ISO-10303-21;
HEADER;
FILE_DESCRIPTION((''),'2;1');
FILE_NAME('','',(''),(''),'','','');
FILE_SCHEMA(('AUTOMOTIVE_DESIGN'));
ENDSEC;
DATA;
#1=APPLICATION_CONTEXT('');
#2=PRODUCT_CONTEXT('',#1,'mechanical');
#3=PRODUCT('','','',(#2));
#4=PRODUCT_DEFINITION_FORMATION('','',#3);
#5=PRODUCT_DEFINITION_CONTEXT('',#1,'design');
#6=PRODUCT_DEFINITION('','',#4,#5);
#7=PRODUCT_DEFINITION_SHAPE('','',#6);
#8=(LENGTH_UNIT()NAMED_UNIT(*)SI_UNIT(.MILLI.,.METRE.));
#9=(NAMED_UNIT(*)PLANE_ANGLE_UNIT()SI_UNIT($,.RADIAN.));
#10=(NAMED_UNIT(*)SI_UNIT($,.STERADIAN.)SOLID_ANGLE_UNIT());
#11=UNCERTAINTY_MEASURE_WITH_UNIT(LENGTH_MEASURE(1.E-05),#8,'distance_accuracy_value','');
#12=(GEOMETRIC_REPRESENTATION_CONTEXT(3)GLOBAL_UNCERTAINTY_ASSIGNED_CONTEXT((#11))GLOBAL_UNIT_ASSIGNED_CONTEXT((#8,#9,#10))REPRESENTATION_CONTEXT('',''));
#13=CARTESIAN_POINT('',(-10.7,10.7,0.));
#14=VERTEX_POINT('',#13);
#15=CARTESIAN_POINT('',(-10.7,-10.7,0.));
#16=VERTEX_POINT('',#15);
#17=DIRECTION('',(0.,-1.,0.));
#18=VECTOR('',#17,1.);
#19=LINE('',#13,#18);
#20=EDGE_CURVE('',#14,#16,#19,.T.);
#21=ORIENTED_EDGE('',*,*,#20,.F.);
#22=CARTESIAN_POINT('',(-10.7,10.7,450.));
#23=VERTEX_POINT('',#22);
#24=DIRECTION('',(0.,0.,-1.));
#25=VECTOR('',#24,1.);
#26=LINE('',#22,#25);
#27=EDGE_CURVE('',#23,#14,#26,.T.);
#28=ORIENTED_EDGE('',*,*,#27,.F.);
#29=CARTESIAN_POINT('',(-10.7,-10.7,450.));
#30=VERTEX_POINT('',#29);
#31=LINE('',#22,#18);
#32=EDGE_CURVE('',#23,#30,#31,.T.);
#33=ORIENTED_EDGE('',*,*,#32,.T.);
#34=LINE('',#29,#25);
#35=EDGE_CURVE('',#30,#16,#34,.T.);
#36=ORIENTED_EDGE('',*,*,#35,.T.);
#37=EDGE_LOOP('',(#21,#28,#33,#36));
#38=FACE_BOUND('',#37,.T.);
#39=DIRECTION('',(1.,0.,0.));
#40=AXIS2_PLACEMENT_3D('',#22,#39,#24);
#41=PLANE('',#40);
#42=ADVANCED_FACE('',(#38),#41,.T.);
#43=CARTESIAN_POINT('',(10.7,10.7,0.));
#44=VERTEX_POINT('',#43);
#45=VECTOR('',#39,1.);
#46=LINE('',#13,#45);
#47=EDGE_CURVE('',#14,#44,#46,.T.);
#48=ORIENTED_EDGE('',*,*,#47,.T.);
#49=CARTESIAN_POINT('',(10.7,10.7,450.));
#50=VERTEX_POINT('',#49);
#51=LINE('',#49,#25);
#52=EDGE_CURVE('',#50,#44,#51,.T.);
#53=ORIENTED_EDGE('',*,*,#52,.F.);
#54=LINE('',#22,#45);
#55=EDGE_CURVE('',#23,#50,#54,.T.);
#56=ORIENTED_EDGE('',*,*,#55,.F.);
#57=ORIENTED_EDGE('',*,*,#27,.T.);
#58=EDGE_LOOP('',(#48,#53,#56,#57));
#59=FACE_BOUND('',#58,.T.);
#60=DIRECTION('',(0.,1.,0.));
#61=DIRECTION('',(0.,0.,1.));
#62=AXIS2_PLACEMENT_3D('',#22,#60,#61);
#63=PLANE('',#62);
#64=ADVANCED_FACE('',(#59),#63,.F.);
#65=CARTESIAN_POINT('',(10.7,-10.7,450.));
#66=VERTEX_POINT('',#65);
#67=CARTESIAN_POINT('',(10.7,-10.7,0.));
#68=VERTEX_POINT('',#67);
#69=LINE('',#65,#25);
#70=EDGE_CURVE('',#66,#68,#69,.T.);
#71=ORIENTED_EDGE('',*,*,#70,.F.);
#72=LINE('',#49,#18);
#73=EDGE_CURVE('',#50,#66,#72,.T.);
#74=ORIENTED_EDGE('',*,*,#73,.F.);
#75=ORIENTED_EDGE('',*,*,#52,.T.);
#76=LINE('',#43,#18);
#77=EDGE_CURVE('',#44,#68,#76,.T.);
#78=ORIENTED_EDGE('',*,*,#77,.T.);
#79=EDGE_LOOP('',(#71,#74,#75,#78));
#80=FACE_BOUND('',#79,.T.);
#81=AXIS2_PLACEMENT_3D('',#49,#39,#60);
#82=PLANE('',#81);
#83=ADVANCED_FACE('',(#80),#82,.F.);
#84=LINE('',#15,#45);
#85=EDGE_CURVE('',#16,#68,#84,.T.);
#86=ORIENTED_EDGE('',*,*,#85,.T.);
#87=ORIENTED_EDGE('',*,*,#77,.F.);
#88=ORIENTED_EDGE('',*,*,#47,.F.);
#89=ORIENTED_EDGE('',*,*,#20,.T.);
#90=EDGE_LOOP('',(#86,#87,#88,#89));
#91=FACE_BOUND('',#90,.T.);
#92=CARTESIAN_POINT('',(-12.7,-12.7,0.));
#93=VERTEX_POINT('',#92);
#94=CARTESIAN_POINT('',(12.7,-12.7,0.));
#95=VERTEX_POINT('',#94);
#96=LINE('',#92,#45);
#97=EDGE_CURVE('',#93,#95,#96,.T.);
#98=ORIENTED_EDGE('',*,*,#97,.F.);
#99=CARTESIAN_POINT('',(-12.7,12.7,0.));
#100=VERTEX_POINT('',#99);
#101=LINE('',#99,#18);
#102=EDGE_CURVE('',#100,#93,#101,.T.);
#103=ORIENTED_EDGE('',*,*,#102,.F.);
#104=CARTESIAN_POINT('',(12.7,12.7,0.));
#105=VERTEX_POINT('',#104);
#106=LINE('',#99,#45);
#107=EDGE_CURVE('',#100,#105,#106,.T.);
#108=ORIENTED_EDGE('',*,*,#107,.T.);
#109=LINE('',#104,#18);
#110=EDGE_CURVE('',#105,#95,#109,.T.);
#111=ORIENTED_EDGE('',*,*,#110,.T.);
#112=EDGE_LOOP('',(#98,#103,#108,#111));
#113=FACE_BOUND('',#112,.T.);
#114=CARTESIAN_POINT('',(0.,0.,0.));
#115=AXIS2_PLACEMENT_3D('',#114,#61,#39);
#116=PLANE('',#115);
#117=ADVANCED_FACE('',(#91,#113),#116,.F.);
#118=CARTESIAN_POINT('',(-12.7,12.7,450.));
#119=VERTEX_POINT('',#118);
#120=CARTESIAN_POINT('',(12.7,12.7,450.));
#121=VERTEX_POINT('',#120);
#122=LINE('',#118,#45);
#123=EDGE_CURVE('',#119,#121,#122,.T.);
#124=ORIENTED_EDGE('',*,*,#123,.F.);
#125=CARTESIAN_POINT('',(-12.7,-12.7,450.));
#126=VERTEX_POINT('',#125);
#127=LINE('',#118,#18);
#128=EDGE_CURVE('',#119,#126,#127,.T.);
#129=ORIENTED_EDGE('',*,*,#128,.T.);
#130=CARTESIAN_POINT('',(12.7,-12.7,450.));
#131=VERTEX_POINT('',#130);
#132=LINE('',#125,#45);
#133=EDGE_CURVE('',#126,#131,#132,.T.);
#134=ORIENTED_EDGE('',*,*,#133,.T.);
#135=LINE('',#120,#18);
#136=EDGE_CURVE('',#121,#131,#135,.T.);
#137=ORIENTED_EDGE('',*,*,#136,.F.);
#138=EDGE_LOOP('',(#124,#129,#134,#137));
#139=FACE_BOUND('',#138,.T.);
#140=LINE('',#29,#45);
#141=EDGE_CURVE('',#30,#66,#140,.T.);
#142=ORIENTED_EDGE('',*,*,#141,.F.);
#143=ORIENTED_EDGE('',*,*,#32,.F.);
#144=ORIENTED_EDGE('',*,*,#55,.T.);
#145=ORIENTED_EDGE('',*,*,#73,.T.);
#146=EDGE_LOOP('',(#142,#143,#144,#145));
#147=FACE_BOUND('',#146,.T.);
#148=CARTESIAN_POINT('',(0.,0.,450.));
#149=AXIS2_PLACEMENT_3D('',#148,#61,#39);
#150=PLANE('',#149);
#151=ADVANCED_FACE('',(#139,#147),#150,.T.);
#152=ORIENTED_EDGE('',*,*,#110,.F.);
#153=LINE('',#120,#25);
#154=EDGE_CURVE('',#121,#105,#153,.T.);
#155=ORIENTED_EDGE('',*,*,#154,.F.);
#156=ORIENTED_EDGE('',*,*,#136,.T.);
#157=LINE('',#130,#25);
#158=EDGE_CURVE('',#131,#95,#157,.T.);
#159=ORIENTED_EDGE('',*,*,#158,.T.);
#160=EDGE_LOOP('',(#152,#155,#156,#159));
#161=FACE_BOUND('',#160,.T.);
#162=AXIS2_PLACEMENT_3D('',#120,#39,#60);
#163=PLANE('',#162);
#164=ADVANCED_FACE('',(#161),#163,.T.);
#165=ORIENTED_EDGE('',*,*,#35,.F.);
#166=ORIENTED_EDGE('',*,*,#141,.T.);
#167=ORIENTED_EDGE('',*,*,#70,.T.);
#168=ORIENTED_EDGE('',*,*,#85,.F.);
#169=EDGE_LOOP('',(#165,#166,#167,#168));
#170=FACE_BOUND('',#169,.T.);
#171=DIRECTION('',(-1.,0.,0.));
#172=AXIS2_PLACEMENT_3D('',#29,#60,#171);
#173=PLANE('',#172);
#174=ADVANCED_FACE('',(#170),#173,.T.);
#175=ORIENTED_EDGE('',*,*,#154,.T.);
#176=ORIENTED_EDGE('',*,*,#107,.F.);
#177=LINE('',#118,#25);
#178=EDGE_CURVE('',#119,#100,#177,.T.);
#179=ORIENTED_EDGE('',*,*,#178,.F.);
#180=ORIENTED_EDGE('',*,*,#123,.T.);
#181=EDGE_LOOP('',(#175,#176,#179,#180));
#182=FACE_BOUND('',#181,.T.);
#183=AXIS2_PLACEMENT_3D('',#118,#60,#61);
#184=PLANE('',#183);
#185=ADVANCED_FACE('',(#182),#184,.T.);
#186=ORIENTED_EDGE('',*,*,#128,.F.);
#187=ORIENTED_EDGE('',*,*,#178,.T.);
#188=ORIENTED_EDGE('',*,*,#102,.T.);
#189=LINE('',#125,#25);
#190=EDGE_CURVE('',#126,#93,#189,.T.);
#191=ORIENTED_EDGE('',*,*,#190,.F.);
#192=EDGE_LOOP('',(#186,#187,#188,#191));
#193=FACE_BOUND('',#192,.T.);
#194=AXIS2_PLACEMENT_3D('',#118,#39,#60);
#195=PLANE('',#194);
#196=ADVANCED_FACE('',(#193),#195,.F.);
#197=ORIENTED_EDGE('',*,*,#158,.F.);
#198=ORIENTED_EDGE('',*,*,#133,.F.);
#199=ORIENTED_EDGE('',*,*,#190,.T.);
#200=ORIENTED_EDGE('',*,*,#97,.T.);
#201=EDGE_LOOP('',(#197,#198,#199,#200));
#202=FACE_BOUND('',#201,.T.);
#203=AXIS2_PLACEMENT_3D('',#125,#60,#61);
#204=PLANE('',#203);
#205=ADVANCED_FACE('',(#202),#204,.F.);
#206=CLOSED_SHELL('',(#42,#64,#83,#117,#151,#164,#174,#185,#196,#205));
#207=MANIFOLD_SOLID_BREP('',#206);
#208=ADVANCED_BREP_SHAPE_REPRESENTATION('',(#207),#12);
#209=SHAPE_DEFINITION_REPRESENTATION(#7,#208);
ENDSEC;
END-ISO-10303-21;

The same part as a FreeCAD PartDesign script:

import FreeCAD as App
import Part
import Sketcher

V = App.Vector


def add_polygon(sketch, points):
    """Adds a closed chain of lines whose ends are joined by coincident constraints."""
    first, n = sketch.GeometryCount, len(points)
    for a, b in zip(points, points[1:] + points[:1]):
        sketch.addGeometry(Part.LineSegment(App.Vector(*a, 0), App.Vector(*b, 0)), False)
    for i in range(n):
        sketch.addConstraint(Sketcher.Constraint("Coincident", first + i, 2, first + (i + 1) % n, 1))

doc = App.newDocument("Part")
body = doc.addObject("PartDesign::Body", "Body")

# Sketch on XY plane
sketch1 = body.newObject("Sketcher::SketchObject", "Sketch")
sketch1.AttachmentSupport = (doc.getObject("XY_Plane"), [""])
sketch1.MapMode = "FlatFace"
add_polygon(sketch1, [(-12.7, 12.7), (-12.7, -12.7), (12.7, -12.7), (12.7, 12.7)])  # lines 0-3
sketch1.addConstraint([
    Sketcher.Constraint("Vertical", 0),
    Sketcher.Constraint("Horizontal", 1),
    Sketcher.Constraint("Vertical", 2),
    Sketcher.Constraint("Horizontal", 3),
    Sketcher.Constraint("Symmetric", 0, 2, 2, 2, -1, 1),
    Sketcher.Constraint("Equal", 3, 0),
    Sketcher.Constraint("DistanceX", 1, 1, 1, 2, 25.4),
])
pad1 = body.newObject("PartDesign::Pad", "Pad")
pad1.Profile = sketch1
pad1.Length = 450

# Sketch on XY plane
sketch2 = body.newObject("Sketcher::SketchObject", "Sketch001")
sketch2.AttachmentSupport = (doc.getObject("XY_Plane"), [""])
sketch2.MapMode = "FlatFace"
add_polygon(sketch2, [(-10.7, 10.7), (-10.7, -10.7), (10.7, -10.7), (10.7, 10.7)])  # lines 0-3
sketch2.addConstraint([
    Sketcher.Constraint("Vertical", 0),
    Sketcher.Constraint("Horizontal", 1),
    Sketcher.Constraint("Vertical", 2),
    Sketcher.Constraint("Horizontal", 3),
    Sketcher.Constraint("Symmetric", 0, 2, 2, 2, -1, 1),
    Sketcher.Constraint("Equal", 3, 0),
    Sketcher.Constraint("DistanceX", 1, 1, 1, 2, 21.4),
])
pocket1 = body.newObject("PartDesign::Pocket", "Pocket")
pocket1.Profile = sketch2
pocket1.Type = "ThroughAll"
pocket1.Reversed = True

doc.recompute()
